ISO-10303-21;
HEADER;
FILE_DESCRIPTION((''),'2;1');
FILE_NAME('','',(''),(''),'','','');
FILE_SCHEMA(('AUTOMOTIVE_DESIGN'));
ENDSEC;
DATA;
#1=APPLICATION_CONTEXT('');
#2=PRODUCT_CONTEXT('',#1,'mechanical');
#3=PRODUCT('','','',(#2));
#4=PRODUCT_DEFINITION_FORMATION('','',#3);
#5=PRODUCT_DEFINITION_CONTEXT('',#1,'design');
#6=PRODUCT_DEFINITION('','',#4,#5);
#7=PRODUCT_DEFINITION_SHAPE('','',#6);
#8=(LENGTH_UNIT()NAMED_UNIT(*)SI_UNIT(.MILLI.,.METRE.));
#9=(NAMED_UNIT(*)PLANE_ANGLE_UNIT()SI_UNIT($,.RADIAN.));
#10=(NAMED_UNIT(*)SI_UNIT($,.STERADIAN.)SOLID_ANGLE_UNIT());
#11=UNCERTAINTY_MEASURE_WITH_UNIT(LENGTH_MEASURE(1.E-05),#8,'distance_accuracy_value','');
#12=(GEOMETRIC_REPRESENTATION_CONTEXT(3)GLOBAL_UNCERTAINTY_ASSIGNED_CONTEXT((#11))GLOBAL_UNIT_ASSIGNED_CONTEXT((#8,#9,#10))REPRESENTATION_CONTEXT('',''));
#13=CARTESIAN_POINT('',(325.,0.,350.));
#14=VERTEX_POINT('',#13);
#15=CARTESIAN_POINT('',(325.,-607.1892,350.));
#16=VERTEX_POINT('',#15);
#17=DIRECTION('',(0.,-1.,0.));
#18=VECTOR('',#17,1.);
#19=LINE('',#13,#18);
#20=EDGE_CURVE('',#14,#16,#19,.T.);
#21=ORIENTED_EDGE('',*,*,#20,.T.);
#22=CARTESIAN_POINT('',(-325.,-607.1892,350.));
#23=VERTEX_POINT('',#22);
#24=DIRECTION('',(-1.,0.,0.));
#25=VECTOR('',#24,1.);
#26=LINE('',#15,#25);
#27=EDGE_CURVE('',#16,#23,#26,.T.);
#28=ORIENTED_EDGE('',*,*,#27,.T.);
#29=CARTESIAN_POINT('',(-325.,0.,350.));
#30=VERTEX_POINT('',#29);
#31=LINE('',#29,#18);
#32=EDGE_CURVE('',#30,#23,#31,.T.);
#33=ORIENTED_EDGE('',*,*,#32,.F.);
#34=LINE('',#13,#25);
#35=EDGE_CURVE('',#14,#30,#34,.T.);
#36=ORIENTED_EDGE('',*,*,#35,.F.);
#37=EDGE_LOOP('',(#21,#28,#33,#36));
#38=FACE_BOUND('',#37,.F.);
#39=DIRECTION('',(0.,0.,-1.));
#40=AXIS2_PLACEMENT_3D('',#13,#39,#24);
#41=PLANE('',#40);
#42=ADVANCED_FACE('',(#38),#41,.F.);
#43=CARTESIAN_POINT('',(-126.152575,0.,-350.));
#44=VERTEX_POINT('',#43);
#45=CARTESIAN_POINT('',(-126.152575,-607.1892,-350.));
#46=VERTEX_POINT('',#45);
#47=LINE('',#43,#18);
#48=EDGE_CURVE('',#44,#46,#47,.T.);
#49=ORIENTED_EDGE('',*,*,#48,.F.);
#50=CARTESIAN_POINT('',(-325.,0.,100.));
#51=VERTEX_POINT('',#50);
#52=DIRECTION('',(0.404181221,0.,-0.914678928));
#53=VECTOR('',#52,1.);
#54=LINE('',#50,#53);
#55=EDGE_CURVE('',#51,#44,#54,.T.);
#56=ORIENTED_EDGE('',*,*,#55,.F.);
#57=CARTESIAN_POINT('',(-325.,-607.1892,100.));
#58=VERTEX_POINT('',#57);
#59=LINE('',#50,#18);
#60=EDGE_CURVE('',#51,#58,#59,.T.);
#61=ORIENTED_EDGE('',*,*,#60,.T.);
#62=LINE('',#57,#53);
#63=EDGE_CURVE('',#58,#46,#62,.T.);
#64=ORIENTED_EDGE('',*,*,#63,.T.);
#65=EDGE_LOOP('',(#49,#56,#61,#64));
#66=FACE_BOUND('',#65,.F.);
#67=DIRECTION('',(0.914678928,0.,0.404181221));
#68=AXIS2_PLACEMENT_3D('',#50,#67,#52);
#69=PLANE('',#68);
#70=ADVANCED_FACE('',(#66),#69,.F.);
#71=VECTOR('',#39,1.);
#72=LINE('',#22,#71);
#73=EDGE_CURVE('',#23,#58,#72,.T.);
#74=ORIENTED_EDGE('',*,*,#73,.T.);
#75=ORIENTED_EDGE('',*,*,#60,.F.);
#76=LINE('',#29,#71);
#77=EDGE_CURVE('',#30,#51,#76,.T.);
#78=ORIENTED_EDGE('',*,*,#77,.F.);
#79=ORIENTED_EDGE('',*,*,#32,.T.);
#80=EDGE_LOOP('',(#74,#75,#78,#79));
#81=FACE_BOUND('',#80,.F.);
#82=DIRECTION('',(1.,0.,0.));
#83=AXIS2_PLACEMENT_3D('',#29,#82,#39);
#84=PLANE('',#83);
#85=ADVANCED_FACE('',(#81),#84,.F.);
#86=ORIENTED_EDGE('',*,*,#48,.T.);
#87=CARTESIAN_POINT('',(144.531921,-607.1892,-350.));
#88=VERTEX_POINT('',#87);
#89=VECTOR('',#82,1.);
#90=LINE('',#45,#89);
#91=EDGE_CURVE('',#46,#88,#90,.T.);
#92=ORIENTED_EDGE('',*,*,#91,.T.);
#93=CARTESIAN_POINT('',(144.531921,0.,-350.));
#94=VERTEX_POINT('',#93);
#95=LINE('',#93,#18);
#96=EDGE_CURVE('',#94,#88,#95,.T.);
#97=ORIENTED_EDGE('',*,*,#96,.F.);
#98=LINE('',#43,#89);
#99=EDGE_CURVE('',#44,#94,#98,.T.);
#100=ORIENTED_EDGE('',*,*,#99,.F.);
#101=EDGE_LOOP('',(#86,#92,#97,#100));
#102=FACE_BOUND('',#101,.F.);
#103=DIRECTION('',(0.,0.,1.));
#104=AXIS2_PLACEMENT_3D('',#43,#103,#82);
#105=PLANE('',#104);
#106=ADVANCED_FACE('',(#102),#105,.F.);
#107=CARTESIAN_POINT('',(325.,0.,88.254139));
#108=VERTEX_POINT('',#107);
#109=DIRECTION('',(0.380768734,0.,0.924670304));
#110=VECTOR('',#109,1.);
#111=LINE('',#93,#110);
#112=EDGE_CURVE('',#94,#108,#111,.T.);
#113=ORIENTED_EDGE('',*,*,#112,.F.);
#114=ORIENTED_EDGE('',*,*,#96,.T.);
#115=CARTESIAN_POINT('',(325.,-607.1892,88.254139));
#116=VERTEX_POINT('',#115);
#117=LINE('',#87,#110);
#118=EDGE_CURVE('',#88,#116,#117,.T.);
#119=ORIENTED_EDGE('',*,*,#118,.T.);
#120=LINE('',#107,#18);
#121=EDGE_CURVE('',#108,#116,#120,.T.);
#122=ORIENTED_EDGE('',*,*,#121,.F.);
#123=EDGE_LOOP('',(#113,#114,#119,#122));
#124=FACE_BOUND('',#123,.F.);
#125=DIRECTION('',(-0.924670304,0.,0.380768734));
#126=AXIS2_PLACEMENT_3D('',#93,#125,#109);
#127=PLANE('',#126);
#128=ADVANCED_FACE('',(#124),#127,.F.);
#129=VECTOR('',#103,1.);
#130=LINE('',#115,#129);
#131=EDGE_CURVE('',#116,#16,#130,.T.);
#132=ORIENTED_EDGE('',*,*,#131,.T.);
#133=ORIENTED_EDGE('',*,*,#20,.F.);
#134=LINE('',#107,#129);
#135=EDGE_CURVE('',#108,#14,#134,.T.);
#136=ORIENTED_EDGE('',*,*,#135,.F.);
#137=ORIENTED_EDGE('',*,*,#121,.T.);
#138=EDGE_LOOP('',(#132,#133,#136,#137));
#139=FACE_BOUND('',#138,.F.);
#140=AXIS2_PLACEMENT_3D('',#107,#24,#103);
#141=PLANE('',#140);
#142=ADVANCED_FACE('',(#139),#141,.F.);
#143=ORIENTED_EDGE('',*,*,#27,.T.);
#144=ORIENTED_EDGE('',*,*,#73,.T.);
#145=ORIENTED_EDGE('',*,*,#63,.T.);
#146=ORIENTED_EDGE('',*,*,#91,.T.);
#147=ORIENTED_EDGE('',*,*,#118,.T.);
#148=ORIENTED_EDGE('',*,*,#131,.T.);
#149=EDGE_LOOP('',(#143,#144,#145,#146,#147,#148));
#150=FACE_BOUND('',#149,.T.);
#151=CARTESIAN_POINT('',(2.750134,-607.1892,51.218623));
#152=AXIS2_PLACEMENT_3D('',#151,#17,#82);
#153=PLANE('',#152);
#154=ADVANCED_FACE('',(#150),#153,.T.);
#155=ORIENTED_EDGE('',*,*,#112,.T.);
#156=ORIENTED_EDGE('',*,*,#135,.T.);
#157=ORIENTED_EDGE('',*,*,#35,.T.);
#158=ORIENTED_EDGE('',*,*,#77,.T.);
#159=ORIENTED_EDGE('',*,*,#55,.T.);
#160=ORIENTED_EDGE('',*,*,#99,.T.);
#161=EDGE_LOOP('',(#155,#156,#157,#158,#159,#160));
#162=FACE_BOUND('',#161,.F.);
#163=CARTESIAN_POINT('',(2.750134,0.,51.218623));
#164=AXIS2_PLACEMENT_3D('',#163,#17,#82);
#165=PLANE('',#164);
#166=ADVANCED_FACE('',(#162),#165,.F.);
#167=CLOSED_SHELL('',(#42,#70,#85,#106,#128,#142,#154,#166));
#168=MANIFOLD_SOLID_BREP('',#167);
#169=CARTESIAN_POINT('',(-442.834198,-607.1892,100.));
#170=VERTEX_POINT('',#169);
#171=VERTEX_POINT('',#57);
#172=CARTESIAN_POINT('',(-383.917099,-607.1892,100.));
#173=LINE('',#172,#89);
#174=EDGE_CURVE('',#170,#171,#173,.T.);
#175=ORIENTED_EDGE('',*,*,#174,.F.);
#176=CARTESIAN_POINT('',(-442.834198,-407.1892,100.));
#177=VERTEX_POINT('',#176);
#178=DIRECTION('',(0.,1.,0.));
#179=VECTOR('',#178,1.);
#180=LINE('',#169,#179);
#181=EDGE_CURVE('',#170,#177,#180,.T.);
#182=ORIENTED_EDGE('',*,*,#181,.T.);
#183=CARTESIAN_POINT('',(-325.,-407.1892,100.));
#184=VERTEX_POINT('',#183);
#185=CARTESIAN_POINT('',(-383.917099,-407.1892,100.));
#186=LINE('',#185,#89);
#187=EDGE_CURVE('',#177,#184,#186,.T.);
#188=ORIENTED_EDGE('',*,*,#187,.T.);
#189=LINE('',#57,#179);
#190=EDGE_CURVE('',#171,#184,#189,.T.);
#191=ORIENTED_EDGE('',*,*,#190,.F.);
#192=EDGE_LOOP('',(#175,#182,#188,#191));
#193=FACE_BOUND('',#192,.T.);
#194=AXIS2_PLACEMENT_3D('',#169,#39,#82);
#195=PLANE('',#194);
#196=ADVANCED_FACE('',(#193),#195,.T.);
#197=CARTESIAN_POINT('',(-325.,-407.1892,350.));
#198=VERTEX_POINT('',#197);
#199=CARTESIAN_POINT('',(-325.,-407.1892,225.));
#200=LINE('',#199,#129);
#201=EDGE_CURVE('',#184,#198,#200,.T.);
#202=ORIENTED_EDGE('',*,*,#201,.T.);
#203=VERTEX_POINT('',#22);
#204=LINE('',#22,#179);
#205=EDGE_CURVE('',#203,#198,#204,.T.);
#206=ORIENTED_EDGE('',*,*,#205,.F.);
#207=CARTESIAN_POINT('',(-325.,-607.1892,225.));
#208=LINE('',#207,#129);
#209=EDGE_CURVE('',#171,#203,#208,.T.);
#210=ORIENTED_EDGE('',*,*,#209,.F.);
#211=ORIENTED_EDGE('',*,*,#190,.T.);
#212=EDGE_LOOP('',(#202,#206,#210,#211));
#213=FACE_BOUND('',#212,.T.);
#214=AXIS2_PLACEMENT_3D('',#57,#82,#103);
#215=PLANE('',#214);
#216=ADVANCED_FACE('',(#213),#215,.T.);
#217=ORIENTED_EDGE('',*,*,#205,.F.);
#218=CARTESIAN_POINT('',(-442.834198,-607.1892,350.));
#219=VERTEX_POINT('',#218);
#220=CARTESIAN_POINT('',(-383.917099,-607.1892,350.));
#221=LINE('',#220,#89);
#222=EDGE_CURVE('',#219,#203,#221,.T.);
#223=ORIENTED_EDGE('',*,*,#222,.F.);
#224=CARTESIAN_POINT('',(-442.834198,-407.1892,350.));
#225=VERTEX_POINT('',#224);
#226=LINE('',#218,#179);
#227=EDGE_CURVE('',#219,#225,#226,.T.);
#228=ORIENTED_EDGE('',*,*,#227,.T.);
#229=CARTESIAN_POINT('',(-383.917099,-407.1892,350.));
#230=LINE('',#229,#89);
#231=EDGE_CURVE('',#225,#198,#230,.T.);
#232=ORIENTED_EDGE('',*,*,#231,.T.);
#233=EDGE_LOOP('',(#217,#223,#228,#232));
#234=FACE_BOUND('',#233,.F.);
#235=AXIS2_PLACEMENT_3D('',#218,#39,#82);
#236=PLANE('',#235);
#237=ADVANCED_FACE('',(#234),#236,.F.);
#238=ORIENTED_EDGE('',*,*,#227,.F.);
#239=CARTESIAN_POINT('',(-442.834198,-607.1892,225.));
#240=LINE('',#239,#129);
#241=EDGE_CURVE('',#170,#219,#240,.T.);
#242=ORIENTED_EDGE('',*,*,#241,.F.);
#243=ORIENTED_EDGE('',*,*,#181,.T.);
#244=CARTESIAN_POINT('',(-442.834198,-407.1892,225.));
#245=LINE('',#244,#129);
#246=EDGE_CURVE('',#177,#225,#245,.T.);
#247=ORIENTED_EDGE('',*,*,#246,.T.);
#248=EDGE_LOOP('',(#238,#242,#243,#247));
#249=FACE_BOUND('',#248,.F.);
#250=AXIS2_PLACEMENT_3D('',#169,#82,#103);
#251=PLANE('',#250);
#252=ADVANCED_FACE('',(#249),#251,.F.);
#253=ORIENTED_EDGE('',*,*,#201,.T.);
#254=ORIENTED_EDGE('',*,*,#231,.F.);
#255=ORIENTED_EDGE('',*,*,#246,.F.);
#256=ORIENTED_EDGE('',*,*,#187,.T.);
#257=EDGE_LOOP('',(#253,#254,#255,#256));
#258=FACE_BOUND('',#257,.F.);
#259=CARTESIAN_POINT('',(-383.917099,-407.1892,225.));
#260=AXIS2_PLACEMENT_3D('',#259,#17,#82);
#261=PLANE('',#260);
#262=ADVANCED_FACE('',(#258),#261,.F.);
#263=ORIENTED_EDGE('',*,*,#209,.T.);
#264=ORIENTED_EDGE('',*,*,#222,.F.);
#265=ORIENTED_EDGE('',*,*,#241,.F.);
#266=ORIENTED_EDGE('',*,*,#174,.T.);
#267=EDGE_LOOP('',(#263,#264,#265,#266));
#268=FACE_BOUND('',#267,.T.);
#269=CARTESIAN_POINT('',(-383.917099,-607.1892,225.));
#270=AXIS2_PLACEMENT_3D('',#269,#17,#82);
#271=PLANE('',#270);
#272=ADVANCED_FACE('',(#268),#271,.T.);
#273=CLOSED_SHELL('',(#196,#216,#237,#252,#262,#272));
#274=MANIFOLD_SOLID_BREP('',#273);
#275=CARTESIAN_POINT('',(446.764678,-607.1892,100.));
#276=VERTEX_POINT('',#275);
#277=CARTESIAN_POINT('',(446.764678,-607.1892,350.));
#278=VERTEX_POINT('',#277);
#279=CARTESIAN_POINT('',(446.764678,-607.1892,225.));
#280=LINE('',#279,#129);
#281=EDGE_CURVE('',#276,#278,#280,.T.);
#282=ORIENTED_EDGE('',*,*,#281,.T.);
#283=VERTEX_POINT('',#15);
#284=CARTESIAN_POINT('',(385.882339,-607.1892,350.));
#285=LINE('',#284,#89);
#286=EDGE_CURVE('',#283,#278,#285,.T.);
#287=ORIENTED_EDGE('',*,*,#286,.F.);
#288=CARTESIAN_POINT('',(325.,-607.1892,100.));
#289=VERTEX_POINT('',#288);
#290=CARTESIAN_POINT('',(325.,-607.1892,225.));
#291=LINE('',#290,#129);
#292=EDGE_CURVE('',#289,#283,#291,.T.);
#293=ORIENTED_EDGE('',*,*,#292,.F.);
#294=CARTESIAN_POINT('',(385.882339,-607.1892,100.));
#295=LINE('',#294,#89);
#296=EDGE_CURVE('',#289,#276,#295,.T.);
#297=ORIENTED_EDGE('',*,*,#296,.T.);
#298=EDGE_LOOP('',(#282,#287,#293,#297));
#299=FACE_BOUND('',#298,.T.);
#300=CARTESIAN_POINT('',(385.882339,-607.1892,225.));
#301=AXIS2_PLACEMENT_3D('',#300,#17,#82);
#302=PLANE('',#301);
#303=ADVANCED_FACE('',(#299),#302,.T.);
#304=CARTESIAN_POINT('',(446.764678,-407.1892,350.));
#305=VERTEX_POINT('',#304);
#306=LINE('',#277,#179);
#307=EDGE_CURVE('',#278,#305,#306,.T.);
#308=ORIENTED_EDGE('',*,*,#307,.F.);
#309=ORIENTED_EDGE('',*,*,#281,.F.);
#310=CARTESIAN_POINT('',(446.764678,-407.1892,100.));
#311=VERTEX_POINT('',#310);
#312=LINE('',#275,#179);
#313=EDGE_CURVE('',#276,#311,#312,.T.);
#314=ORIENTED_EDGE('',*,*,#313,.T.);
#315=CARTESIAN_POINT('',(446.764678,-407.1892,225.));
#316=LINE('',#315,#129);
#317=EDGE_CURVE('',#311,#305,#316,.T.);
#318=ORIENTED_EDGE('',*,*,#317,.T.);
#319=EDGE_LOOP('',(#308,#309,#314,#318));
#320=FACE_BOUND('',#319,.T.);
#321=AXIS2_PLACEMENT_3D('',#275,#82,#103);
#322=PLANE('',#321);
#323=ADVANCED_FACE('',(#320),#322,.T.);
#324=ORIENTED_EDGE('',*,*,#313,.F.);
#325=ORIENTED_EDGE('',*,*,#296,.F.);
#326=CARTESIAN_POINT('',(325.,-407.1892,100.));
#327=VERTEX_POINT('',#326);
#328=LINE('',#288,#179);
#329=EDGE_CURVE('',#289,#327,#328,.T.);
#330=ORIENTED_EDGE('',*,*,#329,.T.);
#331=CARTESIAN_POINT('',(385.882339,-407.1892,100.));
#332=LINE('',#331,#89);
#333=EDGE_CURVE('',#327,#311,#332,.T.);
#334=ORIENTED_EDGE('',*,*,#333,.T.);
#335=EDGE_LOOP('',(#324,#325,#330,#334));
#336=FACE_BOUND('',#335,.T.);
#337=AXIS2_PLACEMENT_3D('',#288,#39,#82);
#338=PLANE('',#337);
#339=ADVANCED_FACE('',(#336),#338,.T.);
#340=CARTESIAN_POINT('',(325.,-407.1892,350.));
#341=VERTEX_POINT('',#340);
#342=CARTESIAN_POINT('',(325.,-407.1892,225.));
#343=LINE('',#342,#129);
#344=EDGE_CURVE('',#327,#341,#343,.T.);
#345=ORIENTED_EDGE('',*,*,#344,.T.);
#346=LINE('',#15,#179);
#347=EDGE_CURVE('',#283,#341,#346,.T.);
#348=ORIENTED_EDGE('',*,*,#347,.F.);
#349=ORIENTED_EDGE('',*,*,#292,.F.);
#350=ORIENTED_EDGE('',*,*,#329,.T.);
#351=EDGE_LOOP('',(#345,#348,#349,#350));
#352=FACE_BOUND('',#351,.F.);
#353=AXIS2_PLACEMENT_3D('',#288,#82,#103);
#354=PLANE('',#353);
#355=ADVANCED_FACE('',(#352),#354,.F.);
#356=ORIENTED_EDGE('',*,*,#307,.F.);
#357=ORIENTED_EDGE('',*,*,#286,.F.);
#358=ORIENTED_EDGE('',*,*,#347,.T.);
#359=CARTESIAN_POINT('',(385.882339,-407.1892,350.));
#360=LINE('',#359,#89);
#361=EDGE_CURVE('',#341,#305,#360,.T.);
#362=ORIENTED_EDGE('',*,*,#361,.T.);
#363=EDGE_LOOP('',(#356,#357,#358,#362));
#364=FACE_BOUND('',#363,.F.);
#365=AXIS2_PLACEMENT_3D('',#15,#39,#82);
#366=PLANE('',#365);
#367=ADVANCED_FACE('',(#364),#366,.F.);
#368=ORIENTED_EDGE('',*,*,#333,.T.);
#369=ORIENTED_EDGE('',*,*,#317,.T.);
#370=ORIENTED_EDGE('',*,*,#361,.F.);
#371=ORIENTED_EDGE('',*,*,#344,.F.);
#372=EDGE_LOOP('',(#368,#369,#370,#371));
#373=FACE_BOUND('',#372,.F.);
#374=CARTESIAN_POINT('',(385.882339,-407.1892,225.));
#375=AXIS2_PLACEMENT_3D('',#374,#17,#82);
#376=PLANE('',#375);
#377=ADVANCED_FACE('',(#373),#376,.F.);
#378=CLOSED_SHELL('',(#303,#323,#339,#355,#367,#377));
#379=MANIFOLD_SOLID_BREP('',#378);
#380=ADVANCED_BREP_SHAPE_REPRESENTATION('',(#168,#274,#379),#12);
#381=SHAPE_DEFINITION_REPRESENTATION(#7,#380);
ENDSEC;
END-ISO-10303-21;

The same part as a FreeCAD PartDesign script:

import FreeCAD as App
import Part
import Sketcher
from FreeCAD import Vector


def add_polygon(sketch, points):
    """Adds a closed chain of lines whose ends are joined by coincident constraints."""
    first, n = sketch.GeometryCount, len(points)
    for a, b in zip(points, points[1:] + points[:1]):
        sketch.addGeometry(Part.LineSegment(App.Vector(*a, 0), App.Vector(*b, 0)), False)
    for i in range(n):
        sketch.addConstraint(Sketcher.Constraint("Coincident", first + i, 2, first + (i + 1) % n, 1))

doc = App.newDocument("Part")
body = doc.addObject("PartDesign::Body", "Body")

# Sketch on XZ plane
sketch1 = body.newObject("Sketcher::SketchObject", "Sketch")
sketch1.AttachmentSupport = (doc.getObject("XZ_Plane"), [""])
sketch1.MapMode = "FlatFace"
add_polygon(sketch1, [(325, 88), (325, 350), (-325, 350), (-325, 100), (-126, -350), (145, -350)])  # lines 0-5
sketch1.addConstraint(Sketcher.Constraint("Vertical", 0))
sketch1.addConstraint(Sketcher.Constraint("Horizontal", 1))
sketch1.addConstraint(Sketcher.Constraint("Vertical", 2))
sketch1.addConstraint(Sketcher.Constraint("Horizontal", 4))
sketch1.addConstraint(Sketcher.Constraint("DistanceX", 1, 2, 1, 1, 650.0))
sketch1.addConstraint(Sketcher.Constraint("DistanceY", 2, 2, 2, 1, 250.0))
sketch1.addConstraint(Sketcher.Constraint("DistanceX", -1, 1, 0, 2, 325.0))
sketch1.addConstraint(Sketcher.Constraint("DistanceY", -1, 1, 0, 2, 350.0))
sketch1.addConstraint(Sketcher.Constraint("DistanceY", 3, 2, -1, 1, 350.0))
sketch1.addConstraint(Sketcher.Constraint("DistanceY", 0, 1, 0, 2, 261.745861))
sketch1.addConstraint(Sketcher.Constraint("Distance", 5, 473.95719))
sketch1.addConstraint(Sketcher.Constraint("DistanceX", 4, 1, 4, 2, 270.684496))
pad1 = body.newObject("PartDesign::Pad", "Pad")
pad1.Profile = sketch1
pad1.Length = 607.1892
body2 = doc.addObject("PartDesign::Body", "Body001")
body2.AllowCompound = True

# Sketch on XZ plane
sketch2 = body2.newObject("Sketcher::SketchObject", "Sketch001")
sketch2.AttachmentSupport = (doc.getObject("XZ_Plane001"), [""])
sketch2.MapMode = "FlatFace"
sketch2.AttachmentOffset = App.Placement(Vector(0, 0, 607.1892), App.Rotation())
add_polygon(sketch2, [(-443, 350), (-443, 100), (-325, 100), (-325, 350)])  # lines 0-3
add_polygon(sketch2, [(325, 350), (325, 100), (447, 100), (447, 350)])  # lines 4-7
sketch2.addConstraint(Sketcher.Constraint("Vertical", 0))
sketch2.addConstraint(Sketcher.Constraint("Horizontal", 1))
sketch2.addConstraint(Sketcher.Constraint("Vertical", 2))
sketch2.addConstraint(Sketcher.Constraint("Horizontal", 3))
sketch2.addConstraint(Sketcher.Constraint("Vertical", 4))
sketch2.addConstraint(Sketcher.Constraint("Horizontal", 5))
sketch2.addConstraint(Sketcher.Constraint("Vertical", 6))
sketch2.addConstraint(Sketcher.Constraint("Horizontal", 7))
sketch2.addConstraint(Sketcher.Constraint("Symmetric", 1, 2, 4, 2, -2))
sketch2.addConstraint(Sketcher.Constraint("Horizontal", 3, 2, 6, 2))
sketch2.addConstraint(Sketcher.Constraint("DistanceY", 0, 2, 0, 1, 250.0))
sketch2.addConstraint(Sketcher.Constraint("DistanceY", -1, 1, 0, 2, 100.0))
sketch2.addConstraint(Sketcher.Constraint("DistanceX", 1, 2, -1, 1, 325.0))
sketch2.addConstraint(Sketcher.Constraint("DistanceX", 1, 1, 1, 2, 117.834198))
sketch2.addConstraint(Sketcher.Constraint("DistanceX", 5, 1, 5, 2, 121.764678))
pad2 = body2.newObject("PartDesign::Pad", "Pad001")
pad2.Profile = sketch2
pad2.Length = 200
pad2.Reversed = True

doc.recompute()
